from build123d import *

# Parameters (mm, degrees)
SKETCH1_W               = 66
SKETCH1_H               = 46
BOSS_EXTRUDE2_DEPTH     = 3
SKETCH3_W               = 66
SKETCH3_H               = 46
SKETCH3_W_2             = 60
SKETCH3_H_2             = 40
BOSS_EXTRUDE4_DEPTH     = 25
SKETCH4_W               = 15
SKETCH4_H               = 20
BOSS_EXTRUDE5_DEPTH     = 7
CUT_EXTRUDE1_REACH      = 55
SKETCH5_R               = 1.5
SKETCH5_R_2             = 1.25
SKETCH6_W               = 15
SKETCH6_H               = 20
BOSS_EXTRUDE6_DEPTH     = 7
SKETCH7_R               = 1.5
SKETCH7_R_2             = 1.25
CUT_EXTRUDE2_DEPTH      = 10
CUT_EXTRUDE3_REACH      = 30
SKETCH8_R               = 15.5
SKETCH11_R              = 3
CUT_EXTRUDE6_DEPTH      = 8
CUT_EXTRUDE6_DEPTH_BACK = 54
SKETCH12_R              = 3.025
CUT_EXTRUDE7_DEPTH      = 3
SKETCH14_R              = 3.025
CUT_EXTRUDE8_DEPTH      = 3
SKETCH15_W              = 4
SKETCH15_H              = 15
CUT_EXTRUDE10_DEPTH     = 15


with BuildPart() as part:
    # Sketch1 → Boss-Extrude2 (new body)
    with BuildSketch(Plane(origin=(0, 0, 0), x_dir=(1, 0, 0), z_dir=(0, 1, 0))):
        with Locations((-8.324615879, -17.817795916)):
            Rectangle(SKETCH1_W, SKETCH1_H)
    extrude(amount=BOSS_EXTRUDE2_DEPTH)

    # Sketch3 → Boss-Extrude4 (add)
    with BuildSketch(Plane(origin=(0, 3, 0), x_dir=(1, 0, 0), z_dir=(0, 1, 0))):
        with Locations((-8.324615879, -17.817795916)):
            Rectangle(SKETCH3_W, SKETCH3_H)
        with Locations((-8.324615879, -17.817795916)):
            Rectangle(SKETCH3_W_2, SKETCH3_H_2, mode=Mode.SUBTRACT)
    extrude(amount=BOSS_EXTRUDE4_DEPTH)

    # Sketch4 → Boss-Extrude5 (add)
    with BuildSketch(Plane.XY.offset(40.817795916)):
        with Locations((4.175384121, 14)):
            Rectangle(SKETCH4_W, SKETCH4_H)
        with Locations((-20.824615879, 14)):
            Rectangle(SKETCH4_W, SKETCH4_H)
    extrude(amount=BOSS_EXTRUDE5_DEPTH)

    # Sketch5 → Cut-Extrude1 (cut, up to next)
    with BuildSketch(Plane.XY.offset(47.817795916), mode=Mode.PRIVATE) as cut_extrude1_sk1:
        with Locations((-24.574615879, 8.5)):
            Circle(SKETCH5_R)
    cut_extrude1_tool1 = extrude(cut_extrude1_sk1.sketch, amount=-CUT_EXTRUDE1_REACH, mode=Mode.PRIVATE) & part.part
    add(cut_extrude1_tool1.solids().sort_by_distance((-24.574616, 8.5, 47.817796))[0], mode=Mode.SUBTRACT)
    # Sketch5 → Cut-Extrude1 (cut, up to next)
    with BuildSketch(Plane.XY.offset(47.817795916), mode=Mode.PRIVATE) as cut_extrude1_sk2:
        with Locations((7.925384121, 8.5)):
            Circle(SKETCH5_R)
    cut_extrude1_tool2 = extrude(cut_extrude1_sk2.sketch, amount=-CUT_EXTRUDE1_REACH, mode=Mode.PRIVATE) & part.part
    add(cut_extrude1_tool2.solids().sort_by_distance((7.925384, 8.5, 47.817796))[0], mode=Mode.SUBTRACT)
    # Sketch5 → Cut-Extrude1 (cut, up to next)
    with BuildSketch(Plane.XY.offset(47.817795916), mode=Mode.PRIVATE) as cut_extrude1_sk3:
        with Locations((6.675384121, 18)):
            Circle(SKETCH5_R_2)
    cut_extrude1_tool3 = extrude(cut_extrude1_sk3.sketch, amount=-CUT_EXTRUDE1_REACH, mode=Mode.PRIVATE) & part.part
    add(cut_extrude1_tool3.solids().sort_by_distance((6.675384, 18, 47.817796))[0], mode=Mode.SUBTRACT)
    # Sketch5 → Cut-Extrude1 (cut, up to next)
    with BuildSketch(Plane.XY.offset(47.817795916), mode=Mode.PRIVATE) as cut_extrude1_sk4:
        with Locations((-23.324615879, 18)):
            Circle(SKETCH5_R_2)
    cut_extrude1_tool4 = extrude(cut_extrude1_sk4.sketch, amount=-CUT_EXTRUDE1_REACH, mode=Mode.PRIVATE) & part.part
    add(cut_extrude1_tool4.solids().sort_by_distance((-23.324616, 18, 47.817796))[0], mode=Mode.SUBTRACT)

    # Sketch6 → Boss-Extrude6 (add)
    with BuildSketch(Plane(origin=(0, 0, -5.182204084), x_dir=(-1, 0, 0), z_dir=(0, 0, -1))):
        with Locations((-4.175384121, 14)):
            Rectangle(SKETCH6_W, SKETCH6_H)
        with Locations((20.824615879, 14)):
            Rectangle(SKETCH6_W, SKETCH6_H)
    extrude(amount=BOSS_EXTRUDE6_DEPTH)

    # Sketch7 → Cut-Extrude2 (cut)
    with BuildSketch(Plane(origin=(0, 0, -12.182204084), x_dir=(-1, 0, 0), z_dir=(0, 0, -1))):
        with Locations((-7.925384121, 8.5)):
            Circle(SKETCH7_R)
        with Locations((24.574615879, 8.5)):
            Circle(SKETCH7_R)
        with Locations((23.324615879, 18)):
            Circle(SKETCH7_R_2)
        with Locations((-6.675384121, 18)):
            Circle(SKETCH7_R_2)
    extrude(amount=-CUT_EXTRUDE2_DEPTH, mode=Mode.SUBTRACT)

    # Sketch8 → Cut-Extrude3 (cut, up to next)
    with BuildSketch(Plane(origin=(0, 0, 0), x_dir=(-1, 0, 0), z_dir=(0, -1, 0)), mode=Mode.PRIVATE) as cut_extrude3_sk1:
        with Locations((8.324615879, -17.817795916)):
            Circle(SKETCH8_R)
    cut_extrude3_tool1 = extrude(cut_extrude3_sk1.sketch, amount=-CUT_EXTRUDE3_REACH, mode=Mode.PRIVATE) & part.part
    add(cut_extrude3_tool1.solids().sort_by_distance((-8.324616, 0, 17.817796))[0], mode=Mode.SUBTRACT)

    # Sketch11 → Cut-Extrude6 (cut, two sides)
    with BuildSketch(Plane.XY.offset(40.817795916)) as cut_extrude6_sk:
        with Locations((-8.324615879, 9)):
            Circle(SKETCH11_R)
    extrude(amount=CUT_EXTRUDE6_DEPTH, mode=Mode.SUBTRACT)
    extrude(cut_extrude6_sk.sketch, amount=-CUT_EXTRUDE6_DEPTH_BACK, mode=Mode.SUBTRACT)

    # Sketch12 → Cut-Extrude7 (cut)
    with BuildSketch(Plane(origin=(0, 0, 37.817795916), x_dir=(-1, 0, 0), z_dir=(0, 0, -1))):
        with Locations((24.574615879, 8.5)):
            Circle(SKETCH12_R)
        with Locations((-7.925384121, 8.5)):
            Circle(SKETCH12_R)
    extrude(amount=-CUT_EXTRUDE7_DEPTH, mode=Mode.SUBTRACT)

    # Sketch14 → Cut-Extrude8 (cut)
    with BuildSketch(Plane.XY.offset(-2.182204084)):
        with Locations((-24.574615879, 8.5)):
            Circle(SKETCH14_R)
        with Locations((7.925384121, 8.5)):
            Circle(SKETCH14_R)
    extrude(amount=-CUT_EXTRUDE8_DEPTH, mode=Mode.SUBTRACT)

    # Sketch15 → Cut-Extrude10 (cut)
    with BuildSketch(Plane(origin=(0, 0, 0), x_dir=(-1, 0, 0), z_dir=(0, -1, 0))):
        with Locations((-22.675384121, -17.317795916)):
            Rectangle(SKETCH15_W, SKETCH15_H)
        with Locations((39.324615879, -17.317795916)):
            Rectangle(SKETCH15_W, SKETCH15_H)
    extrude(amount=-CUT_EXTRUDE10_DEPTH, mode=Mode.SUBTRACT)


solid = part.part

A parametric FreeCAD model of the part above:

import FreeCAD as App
import Part
import Sketcher

V = App.Vector
Q = App.Units.Quantity


def add_polygon(sketch, points):
    """Adds a closed chain of lines whose ends are joined by coincident constraints."""
    first, n = sketch.GeometryCount, len(points)
    for a, b in zip(points, points[1:] + points[:1]):
        sketch.addGeometry(Part.LineSegment(App.Vector(*a, 0), App.Vector(*b, 0)), False)
    for i in range(n):
        sketch.addConstraint(Sketcher.Constraint("Coincident", first + i, 2, first + (i + 1) % n, 1))

doc = App.newDocument("Part")
body = doc.addObject("PartDesign::Body", "Body")

sketch1 = doc.addObject("Sketcher::SketchObject", "Sketch")
body.addObject(sketch1)
sketch1.AttachmentSupport = (doc.XZ_Plane, [""])
sketch1.MapMode = "FlatFace"
add_polygon(sketch1, [(-41, -5), (-41, 41), (25, 41), (25, -5)])
sketch1.addConstraint([
    Sketcher.Constraint("Vertical", 0),
    Sketcher.Constraint("Horizontal", 1),
    Sketcher.Constraint("Vertical", 2),
    Sketcher.Constraint("Horizontal", 3),
    Sketcher.Constraint("DistanceX", 1, 1, 1, 2, Q("66 mm")),
    Sketcher.Constraint("DistanceY", 0, 1, 0, 2, Q("46 mm")),
    Sketcher.Constraint("DistanceX", 0, 2, -1, 1, Q("41.324616 mm")),
    Sketcher.Constraint("DistanceY", -1, 1, 0, 2, Q("40.817796 mm")),
])
pad1 = doc.addObject("PartDesign::Pad", "Pad")
body.addObject(pad1)
pad1.Profile = sketch1
pad1.Length = 3
pad1.Reversed = True

sketch2 = doc.addObject("Sketcher::SketchObject", "Sketch001")
body.addObject(sketch2)
sketch2.AttachmentSupport = (doc.XZ_Plane, [""])
sketch2.MapMode = "FlatFace"
sketch2.AttachmentOffset = App.Placement(V(0, 0, -3), App.Rotation())
add_polygon(sketch2, [(-41, -5), (-41, 41), (25, 41), (25, -5)])
add_polygon(sketch2, [(22, 38), (-38, 38), (-38, -2), (22, -2)])
sketch2.addConstraint([
    Sketcher.Constraint("Vertical", 0),
    Sketcher.Constraint("Horizontal", 1),
    Sketcher.Constraint("Vertical", 2),
    Sketcher.Constraint("Horizontal", 3),
    Sketcher.Constraint("Horizontal", 4),
    Sketcher.Constraint("Vertical", 5),
    Sketcher.Constraint("Horizontal", 6),
    Sketcher.Constraint("Vertical", 7),
    Sketcher.Constraint("DistanceX", 1, 1, 1, 2, Q("66 mm")),
    Sketcher.Constraint("DistanceX", 4, 2, 4, 1, Q("60 mm")),
    Sketcher.Constraint("DistanceY", 0, 1, 0, 2, Q("46 mm")),
    Sketcher.Constraint("DistanceY", 5, 2, 5, 1, Q("40 mm")),
    Sketcher.Constraint("DistanceX", 0, 2, 4, 2, Q("3 mm")),
    Sketcher.Constraint("DistanceY", 4, 2, 0, 2, Q("3 mm")),
    Sketcher.Constraint("DistanceX", 0, 2, -1, 1, Q("41.324616 mm")),
    Sketcher.Constraint("DistanceY", -1, 1, 0, 2, Q("40.817796 mm")),
])
pad2 = doc.addObject("PartDesign::Pad", "Pad001")
body.addObject(pad2)
pad2.Profile = sketch2
pad2.Length = 25
pad2.Reversed = True

sketch3 = doc.addObject("Sketcher::SketchObject", "Sketch002")
body.addObject(sketch3)
sketch3.AttachmentSupport = (doc.XY_Plane, [""])
sketch3.MapMode = "FlatFace"
sketch3.AttachmentOffset = App.Placement(V(0, 0, 40.817796), App.Rotation())
add_polygon(sketch3, [(-3, 24), (-3, 4), (12, 4), (12, 24)])
add_polygon(sketch3, [(-28, 24), (-28, 4), (-13, 4), (-13, 24)])
sketch3.addConstraint([
    Sketcher.Constraint("Vertical", 0),
    Sketcher.Constraint("Horizontal", 1),
    Sketcher.Constraint("Vertical", 2),
    Sketcher.Constraint("Horizontal", 3),
    Sketcher.Constraint("Vertical", 4),
    Sketcher.Constraint("Horizontal", 5),
    Sketcher.Constraint("Vertical", 6),
    Sketcher.Constraint("Horizontal", 7),
    Sketcher.Constraint("Horizontal", 1, 2, 4, 2),
    Sketcher.Constraint("Horizontal", 3, 2, 6, 2),
    Sketcher.Constraint("Equal", 3, 5),
    Sketcher.Constraint("DistanceX", 1, 1, 1, 2, Q("15 mm")),
    Sketcher.Constraint("DistanceY", 0, 2, 0, 1, Q("20 mm")),
    Sketcher.Constraint("DistanceY", -1, 1, 0, 2, Q("4 mm")),
    Sketcher.Constraint("DistanceX", 4, 2, 0, 2, Q("25 mm")),
    Sketcher.Constraint("DistanceX", 0, 2, -1, 1, Q("3.324616 mm")),
])
pad3 = doc.addObject("PartDesign::Pad", "Pad002")
body.addObject(pad3)
pad3.Profile = sketch3
pad3.Length = 7

sketch4 = doc.addObject("Sketcher::SketchObject", "Sketch003")
body.addObject(sketch4)
sketch4.AttachmentSupport = (doc.XY_Plane, [""])
sketch4.MapMode = "FlatFace"
sketch4.AttachmentOffset = App.Placement(V(0, 0, 47.817796), App.Rotation())
sketch4.addGeometry(Part.Circle(V(-24.6, 8.5, 0), V(0, 0, 1), 1.5), False)
sketch4.addConstraint([
    Sketcher.Constraint("Diameter", 0, Q("3 mm")),
    Sketcher.Constraint("DistanceY", -1, 1, 0, 3, Q("8.5 mm")),
    Sketcher.Constraint("DistanceX", 0, 3, -1, 1, Q("24.574616 mm")),
])
pocket1 = doc.addObject("PartDesign::Pocket", "Pocket")
body.addObject(pocket1)
pocket1.Profile = sketch4
pocket1.Type = "UpToFirst"

sketch5 = doc.addObject("Sketcher::SketchObject", "Sketch004")
body.addObject(sketch5)
sketch5.AttachmentSupport = (doc.XY_Plane, [""])
sketch5.MapMode = "FlatFace"
sketch5.AttachmentOffset = App.Placement(V(0, 0, 47.817796), App.Rotation())
sketch5.addGeometry(Part.Circle(V(7.9, 8.5, 0), V(0, 0, 1), 1.5), False)
sketch5.addConstraint([
    Sketcher.Constraint("Diameter", 0, Q("3 mm")),
    Sketcher.Constraint("DistanceY", -1, 1, 0, 3, Q("8.5 mm")),
    Sketcher.Constraint("DistanceX", -1, 1, 0, 3, Q("7.925384 mm")),
])
pocket2 = doc.addObject("PartDesign::Pocket", "Pocket001")
body.addObject(pocket2)
pocket2.Profile = sketch5
pocket2.Type = "UpToFirst"

sketch6 = doc.addObject("Sketcher::SketchObject", "Sketch005")
body.addObject(sketch6)
sketch6.AttachmentSupport = (doc.XY_Plane, [""])
sketch6.MapMode = "FlatFace"
sketch6.AttachmentOffset = App.Placement(V(0, 0, 47.817796), App.Rotation())
sketch6.addGeometry(Part.Circle(V(6.7, 18, 0), V(0, 0, 1), 1.2), False)
sketch6.addConstraint([
    Sketcher.Constraint("Diameter", 0, Q("2.5 mm")),
    Sketcher.Constraint("DistanceY", -1, 1, 0, 3, Q("18 mm")),
    Sketcher.Constraint("DistanceX", -1, 1, 0, 3, Q("6.675384 mm")),
])
pocket3 = doc.addObject("PartDesign::Pocket", "Pocket002")
body.addObject(pocket3)
pocket3.Profile = sketch6
pocket3.Type = "UpToFirst"

sketch7 = doc.addObject("Sketcher::SketchObject", "Sketch006")
body.addObject(sketch7)
sketch7.AttachmentSupport = (doc.XY_Plane, [""])
sketch7.MapMode = "FlatFace"
sketch7.AttachmentOffset = App.Placement(V(0, 0, 47.817796), App.Rotation())
sketch7.addGeometry(Part.Circle(V(-23.3, 18, 0), V(0, 0, 1), 1.2), False)
sketch7.addConstraint([
    Sketcher.Constraint("Diameter", 0, Q("2.5 mm")),
    Sketcher.Constraint("DistanceY", -1, 1, 0, 3, Q("18 mm")),
    Sketcher.Constraint("DistanceX", 0, 3, -1, 1, Q("23.324616 mm")),
])
pocket4 = doc.addObject("PartDesign::Pocket", "Pocket003")
body.addObject(pocket4)
pocket4.Profile = sketch7
pocket4.Type = "UpToFirst"

sketch8 = doc.addObject("Sketcher::SketchObject", "Sketch007")
body.addObject(sketch8)
sketch8.AttachmentSupport = (doc.XY_Plane, [""])
sketch8.MapMode = "FlatFace"
sketch8.AttachmentOffset = App.Placement(V(0, 0, -5.182204), App.Rotation())
add_polygon(sketch8, [(12, 24), (12, 4), (-3, 4), (-3, 24)])
add_polygon(sketch8, [(-13, 24), (-13, 4), (-28, 4), (-28, 24)])
sketch8.addConstraint([
    Sketcher.Constraint("Vertical", 0),
    Sketcher.Constraint("Horizontal", 1),
    Sketcher.Constraint("Vertical", 2),
    Sketcher.Constraint("Horizontal", 3),
    Sketcher.Constraint("Vertical", 4),
    Sketcher.Constraint("Horizontal", 5),
    Sketcher.Constraint("Vertical", 6),
    Sketcher.Constraint("Horizontal", 7),
    Sketcher.Constraint("Horizontal", 1, 2, 4, 2),
    Sketcher.Constraint("Horizontal", 3, 2, 6, 2),
    Sketcher.Constraint("Equal", 3, 5),
    Sketcher.Constraint("DistanceX", 1, 2, 1, 1, Q("15 mm")),
    Sketcher.Constraint("DistanceY", 0, 2, 0, 1, Q("20 mm")),
    Sketcher.Constraint("DistanceY", -1, 1, 0, 2, Q("4 mm")),
    Sketcher.Constraint("DistanceX", 4, 2, 1, 2, Q("10 mm")),
    Sketcher.Constraint("DistanceX", -1, 1, 0, 2, Q("11.675384 mm")),
])
pad4 = doc.addObject("PartDesign::Pad", "Pad003")
body.addObject(pad4)
pad4.Profile = sketch8
pad4.Length = 7
pad4.Reversed = True

sketch9 = doc.addObject("Sketcher::SketchObject", "Sketch008")
body.addObject(sketch9)
sketch9.AttachmentSupport = (doc.XY_Plane, [""])
sketch9.MapMode = "FlatFace"
sketch9.AttachmentOffset = App.Placement(V(0, 0, -12.182204), App.Rotation())
sketch9.addGeometry([
    Part.Circle(V(7.9, 8.5, 0), V(0, 0, 1), 1.5),
    Part.Circle(V(-24.6, 8.5, 0), V(0, 0, 1), 1.5),
    Part.Circle(V(-23.3, 18, 0), V(0, 0, 1), 1.2),
    Part.Circle(V(6.7, 18, 0), V(0, 0, 1), 1.2),
], False)
sketch9.addConstraint([
    Sketcher.Constraint("Equal", 0, 1),
    Sketcher.Constraint("Equal", 2, 3),
    Sketcher.Constraint("Horizontal", 0, 3, 1, 3),
    Sketcher.Constraint("Horizontal", 2, 3, 3, 3),
    Sketcher.Constraint("Diameter", 0, Q("3 mm")),
    Sketcher.Constraint("Diameter", 2, Q("2.5 mm")),
    Sketcher.Constraint("DistanceY", -1, 1, 2, 3, Q("18 mm")),
    Sketcher.Constraint("DistanceX", 2, 3, 3, 3, Q("30 mm")),
    Sketcher.Constraint("DistanceY", -1, 1, 0, 3, Q("8.5 mm")),
    Sketcher.Constraint("DistanceX", 1, 3, 0, 3, Q("32.5 mm")),
    Sketcher.Constraint("DistanceX", 1, 3, 2, 3, Q("1.25 mm")),
    Sketcher.Constraint("DistanceX", -1, 1, 0, 3, Q("7.925384 mm")),
])
pocket5 = doc.addObject("PartDesign::Pocket", "Pocket004")
body.addObject(pocket5)
pocket5.Profile = sketch9
pocket5.Length = 10
pocket5.Reversed = True

sketch10 = doc.addObject("Sketcher::SketchObject", "Sketch009")
body.addObject(sketch10)
sketch10.AttachmentSupport = (doc.XZ_Plane, [""])
sketch10.MapMode = "FlatFace"
sketch10.addGeometry(Part.Circle(V(-8, 18, 0), V(0, 0, 1), 16), False)
sketch10.addConstraint([
    Sketcher.Constraint("Diameter", 0, Q("31 mm")),
    Sketcher.Constraint("DistanceX", 0, 3, -1, 1, Q("8.324616 mm")),
    Sketcher.Constraint("DistanceY", -1, 1, 0, 3, Q("17.817796 mm")),
])
pocket6 = doc.addObject("PartDesign::Pocket", "Pocket005")
body.addObject(pocket6)
pocket6.Profile = sketch10
pocket6.Type = "UpToFirst"

sketch11 = doc.addObject("Sketcher::SketchObject", "Sketch010")
body.addObject(sketch11)
sketch11.AttachmentSupport = (doc.XY_Plane, [""])
sketch11.MapMode = "FlatFace"
sketch11.AttachmentOffset = App.Placement(V(0, 0, 40.817796), App.Rotation())
sketch11.addGeometry(Part.Circle(V(-8.3, 9, 0), V(0, 0, 1), 3), False)
sketch11.addConstraint([
    Sketcher.Constraint("Diameter", 0, Q("6 mm")),
    Sketcher.Constraint("DistanceY", -1, 1, 0, 3, Q("9 mm")),
    Sketcher.Constraint("DistanceX", 0, 3, -1, 1, Q("8.324616 mm")),
])
pocket7 = doc.addObject("PartDesign::Pocket", "Pocket006")
body.addObject(pocket7)
pocket7.Profile = sketch11
pocket7.Type = "ThroughAll"
pocket7.Midplane = True

sketch12 = doc.addObject("Sketcher::SketchObject", "Sketch011")
body.addObject(sketch12)
sketch12.AttachmentSupport = (doc.XY_Plane, [""])
sketch12.MapMode = "FlatFace"
sketch12.AttachmentOffset = App.Placement(V(0, 0, 37.817796), App.Rotation())
sketch12.addGeometry([
    Part.Circle(V(-24.6, 8.5, 0), V(0, 0, 1), 3),
    Part.Circle(V(7.9, 8.5, 0), V(0, 0, 1), 3),
], False)
sketch12.addConstraint([
    Sketcher.Constraint("Equal", 0, 1),
    Sketcher.Constraint("Horizontal", 0, 3, 1, 3),
    Sketcher.Constraint("Diameter", 0, Q("6.05 mm")),
    Sketcher.Constraint("DistanceY", -1, 1, 0, 3, Q("8.5 mm")),
    Sketcher.Constraint("DistanceX", 0, 3, 1, 3, Q("32.5 mm")),
    Sketcher.Constraint("DistanceX", 0, 3, -1, 1, Q("24.574616 mm")),
])
pocket8 = doc.addObject("PartDesign::Pocket", "Pocket007")
body.addObject(pocket8)
pocket8.Profile = sketch12
pocket8.Length = 3
pocket8.Reversed = True

sketch13 = doc.addObject("Sketcher::SketchObject", "Sketch012")
body.addObject(sketch13)
sketch13.AttachmentSupport = (doc.XY_Plane, [""])
sketch13.MapMode = "FlatFace"
sketch13.AttachmentOffset = App.Placement(V(0, 0, -2.182204), App.Rotation())
sketch13.addGeometry([
    Part.Circle(V(-24.6, 8.5, 0), V(0, 0, 1), 3),
    Part.Circle(V(7.9, 8.5, 0), V(0, 0, 1), 3),
], False)
sketch13.addConstraint([
    Sketcher.Constraint("Equal", 0, 1),
    Sketcher.Constraint("Horizontal", 0, 3, 1, 3),
    Sketcher.Constraint("Diameter", 0, Q("6.05 mm")),
    Sketcher.Constraint("DistanceY", -1, 1, 0, 3, Q("8.5 mm")),
    Sketcher.Constraint("DistanceX", 0, 3, 1, 3, Q("32.5 mm")),
    Sketcher.Constraint("DistanceX", 0, 3, -1, 1, Q("24.574616 mm")),
])
pocket9 = doc.addObject("PartDesign::Pocket", "Pocket008")
body.addObject(pocket9)
pocket9.Profile = sketch13
pocket9.Length = 3

sketch14 = doc.addObject("Sketcher::SketchObject", "Sketch013")
body.addObject(sketch14)
sketch14.AttachmentSupport = (doc.XZ_Plane, [""])
sketch14.MapMode = "FlatFace"
add_polygon(sketch14, [(24.7, 9.8), (24.7, 24.8), (20.7, 24.8), (20.7, 9.8)])
add_polygon(sketch14, [(-37.3, 9.8), (-37.3, 24.8), (-41.3, 24.8), (-41.3, 9.8)])
sketch14.addConstraint([
    Sketcher.Constraint("Vertical", 0),
    Sketcher.Constraint("Horizontal", 1),
    Sketcher.Constraint("Vertical", 2),
    Sketcher.Constraint("Horizontal", 3),
    Sketcher.Constraint("Vertical", 4),
    Sketcher.Constraint("Horizontal", 5),
    Sketcher.Constraint("Vertical", 6),
    Sketcher.Constraint("Horizontal", 7),
    Sketcher.Constraint("Horizontal", 1, 2, 4, 2),
    Sketcher.Constraint("Horizontal", 3, 2, 6, 2),
    Sketcher.Constraint("Equal", 3, 5),
    Sketcher.Constraint("DistanceX", 1, 2, 1, 1, Q("4 mm")),
    Sketcher.Constraint("DistanceY", 0, 1, 0, 2, Q("15 mm")),
    Sketcher.Constraint("DistanceX", 4, 2, 1, 2, Q("58 mm")),
    Sketcher.Constraint("DistanceX", -1, 1, 0, 2, Q("24.675384 mm")),
    Sketcher.Constraint("DistanceY", -1, 1, 0, 2, Q("24.817796 mm")),
])
pocket10 = doc.addObject("PartDesign::Pocket", "Pocket009")
body.addObject(pocket10)
pocket10.Profile = sketch14
pocket10.Length = 15

doc.recompute()
